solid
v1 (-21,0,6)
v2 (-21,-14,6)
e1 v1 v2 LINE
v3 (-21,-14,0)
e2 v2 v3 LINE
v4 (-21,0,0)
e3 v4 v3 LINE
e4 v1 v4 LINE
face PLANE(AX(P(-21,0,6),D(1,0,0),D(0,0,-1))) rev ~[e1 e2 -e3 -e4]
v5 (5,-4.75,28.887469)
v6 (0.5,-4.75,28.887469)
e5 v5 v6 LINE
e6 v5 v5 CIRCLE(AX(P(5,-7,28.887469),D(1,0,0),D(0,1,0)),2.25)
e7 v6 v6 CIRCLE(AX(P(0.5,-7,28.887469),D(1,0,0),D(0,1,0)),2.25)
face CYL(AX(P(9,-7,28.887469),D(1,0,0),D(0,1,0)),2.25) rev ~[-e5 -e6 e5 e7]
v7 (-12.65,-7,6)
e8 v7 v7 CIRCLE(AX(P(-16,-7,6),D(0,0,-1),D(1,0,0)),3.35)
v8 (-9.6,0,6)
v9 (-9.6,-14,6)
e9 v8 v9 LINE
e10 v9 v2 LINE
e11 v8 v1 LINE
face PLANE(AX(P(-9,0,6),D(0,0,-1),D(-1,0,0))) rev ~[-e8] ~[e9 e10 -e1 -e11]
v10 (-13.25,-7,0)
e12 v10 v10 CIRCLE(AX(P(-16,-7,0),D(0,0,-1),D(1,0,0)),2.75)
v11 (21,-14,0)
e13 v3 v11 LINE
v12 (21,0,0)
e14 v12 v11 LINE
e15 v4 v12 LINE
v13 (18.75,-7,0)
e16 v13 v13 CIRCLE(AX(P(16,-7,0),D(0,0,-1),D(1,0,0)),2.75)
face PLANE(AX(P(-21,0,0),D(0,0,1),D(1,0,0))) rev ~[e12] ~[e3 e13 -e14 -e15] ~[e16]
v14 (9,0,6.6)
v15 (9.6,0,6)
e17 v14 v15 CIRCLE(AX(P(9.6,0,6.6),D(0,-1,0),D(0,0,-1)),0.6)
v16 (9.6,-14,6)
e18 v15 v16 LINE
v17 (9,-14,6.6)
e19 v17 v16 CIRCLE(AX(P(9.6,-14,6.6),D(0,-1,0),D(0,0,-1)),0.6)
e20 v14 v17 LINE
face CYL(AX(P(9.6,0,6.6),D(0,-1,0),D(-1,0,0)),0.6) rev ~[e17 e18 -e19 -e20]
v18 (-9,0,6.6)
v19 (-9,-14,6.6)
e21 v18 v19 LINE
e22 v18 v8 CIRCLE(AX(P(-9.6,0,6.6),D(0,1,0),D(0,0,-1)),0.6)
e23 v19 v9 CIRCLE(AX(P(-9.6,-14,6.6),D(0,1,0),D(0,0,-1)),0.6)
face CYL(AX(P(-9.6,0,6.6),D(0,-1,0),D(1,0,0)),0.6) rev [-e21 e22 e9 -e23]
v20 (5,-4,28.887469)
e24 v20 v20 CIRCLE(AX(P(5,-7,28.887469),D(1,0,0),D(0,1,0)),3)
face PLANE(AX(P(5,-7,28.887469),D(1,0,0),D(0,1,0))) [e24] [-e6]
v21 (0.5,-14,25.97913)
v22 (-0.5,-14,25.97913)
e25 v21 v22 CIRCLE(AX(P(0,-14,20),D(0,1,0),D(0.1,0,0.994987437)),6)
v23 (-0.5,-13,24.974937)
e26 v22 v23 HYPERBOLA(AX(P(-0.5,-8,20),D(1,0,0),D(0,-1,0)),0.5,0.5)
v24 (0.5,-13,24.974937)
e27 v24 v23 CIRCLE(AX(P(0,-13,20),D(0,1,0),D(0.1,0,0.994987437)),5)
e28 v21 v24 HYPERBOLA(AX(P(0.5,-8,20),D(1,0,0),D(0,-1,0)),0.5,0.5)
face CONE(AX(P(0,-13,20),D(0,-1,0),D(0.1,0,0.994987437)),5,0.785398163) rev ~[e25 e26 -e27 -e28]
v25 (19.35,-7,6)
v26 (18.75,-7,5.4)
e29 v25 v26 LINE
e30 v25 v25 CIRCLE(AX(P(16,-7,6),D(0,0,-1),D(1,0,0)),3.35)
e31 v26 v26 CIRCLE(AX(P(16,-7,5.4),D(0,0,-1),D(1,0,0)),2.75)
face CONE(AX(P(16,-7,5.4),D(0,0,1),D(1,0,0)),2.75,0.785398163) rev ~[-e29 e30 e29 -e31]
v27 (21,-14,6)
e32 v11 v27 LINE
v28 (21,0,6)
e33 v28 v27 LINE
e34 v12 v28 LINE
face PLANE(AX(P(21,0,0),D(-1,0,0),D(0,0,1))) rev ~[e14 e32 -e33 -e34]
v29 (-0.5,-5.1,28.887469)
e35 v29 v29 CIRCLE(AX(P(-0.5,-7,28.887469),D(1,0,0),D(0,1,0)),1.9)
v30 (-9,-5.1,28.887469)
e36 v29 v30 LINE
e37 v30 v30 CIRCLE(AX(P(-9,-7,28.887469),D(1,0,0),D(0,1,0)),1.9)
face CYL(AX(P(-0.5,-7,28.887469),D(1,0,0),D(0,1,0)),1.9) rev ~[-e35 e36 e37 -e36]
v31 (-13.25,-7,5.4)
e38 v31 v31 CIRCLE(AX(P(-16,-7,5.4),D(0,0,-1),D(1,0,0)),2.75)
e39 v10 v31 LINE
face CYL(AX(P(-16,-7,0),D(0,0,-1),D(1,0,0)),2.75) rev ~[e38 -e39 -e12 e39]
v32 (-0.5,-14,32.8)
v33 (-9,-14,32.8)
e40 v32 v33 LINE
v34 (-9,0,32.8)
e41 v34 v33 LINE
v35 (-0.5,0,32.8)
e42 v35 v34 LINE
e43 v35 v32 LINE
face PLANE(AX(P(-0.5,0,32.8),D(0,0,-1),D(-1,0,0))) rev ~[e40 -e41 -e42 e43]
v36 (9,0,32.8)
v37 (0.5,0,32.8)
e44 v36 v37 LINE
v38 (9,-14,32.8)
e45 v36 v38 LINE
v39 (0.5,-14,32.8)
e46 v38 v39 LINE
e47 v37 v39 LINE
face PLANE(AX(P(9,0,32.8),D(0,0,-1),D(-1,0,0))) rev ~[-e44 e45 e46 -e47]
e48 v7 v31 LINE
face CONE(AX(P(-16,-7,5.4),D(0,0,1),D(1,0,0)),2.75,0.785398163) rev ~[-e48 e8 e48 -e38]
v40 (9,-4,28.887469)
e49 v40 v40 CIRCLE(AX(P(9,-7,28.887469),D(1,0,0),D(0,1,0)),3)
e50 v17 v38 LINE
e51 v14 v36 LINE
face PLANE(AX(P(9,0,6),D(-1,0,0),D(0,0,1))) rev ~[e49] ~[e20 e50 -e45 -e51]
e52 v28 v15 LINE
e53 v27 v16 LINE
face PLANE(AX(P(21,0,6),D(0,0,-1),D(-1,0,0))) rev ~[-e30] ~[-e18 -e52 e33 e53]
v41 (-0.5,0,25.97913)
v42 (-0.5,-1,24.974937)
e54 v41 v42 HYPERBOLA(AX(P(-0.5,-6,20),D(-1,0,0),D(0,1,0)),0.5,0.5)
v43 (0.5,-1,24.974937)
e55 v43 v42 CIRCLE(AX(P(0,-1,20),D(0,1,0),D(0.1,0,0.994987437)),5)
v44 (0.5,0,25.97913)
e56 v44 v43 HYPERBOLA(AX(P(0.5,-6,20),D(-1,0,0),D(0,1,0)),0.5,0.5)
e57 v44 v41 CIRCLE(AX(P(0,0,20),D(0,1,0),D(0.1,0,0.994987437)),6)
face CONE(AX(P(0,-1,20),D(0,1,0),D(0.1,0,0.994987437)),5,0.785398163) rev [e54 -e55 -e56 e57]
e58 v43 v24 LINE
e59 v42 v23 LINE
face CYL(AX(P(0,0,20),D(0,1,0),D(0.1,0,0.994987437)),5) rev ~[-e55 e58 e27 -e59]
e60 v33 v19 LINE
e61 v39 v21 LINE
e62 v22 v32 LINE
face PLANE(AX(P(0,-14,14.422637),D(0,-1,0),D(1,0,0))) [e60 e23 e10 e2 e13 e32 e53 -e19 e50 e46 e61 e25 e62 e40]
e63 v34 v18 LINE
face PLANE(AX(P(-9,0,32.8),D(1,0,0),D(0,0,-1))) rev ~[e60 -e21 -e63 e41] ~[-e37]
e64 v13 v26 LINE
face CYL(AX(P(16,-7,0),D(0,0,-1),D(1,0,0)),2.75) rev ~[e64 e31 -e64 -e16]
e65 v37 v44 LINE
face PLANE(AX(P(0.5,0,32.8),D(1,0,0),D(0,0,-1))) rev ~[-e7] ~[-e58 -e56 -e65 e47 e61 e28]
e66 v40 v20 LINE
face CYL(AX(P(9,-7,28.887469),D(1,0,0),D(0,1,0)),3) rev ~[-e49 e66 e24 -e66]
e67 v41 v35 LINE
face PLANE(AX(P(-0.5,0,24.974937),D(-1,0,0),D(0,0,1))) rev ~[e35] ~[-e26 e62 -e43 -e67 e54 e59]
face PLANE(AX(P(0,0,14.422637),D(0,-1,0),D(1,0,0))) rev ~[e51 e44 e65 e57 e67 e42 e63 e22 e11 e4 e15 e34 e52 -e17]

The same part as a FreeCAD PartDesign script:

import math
import FreeCAD as App
import Part
import Sketcher
from FreeCAD import Vector


def edges_at(feature, points):
    """Names of the edges that pass closest to the given points."""
    edges = feature.Shape.Edges
    near = lambda p: min(range(len(edges)), key=lambda i: edges[i].distToShape(Part.Vertex(*p))[0])
    return sorted({f"Edge{near(p) + 1}" for p in points})

doc = App.newDocument("Part")
params = doc.addObject("Spreadsheet::Sheet", "Params")
for row, (alias, value) in enumerate([
    ("sketch1_radius", "5 mm"),
    ("sketch1_width", "42 mm"),
    ("sketch1_width2", "12 mm"),
    ("sketch1_height", "6 mm"),
    ("sketch1_width3", "8.5 mm"),
    ("pad1_length", "14 mm"),
    ("sketch2_diameter", "5.5 mm"),
    ("chamfer_size", "1 mm"),
    ("fillet_radius", "0.6 mm"),
    ("chamfer2_size", "0.6 mm"),
    ("sketch3_diameter", "3.8 mm"),
    ("sketch4_diameter", "4.5 mm"),
    ("pocket3_length", "9.5 mm"),
    ("sketch5_diameter", "6 mm"),
    ("pocket4_length", "4 mm"),
], start=1):
    params.set(f"A{row}", alias)
    params.set(f"B{row}", "=" + value)
    params.setAlias(f"B{row}", alias)

body = doc.addObject("PartDesign::Body", "Body")

sketch1 = body.newObject("Sketcher::SketchObject", "Sketch")
sketch1.AttachmentSupport = (doc.getObject("XZ_Plane"), [""])
sketch1.MapMode = "FlatFace"
sketch1.addGeometry(Part.LineSegment(Vector(-21, 0, 0), Vector(21, 0, 0)), False)
sketch1.addGeometry(Part.LineSegment(Vector(21, 0, 0), Vector(21, 6, 0)), False)
sketch1.addGeometry(Part.LineSegment(Vector(21, 6, 0), Vector(9, 6, 0)), False)
sketch1.addGeometry(Part.LineSegment(Vector(9, 6, 0), Vector(9, 32.8, 0)), False)
sketch1.addGeometry(Part.LineSegment(Vector(9, 32.8, 0), Vector(0.5, 32.8, 0)), False)
sketch1.addGeometry(Part.LineSegment(Vector(0.5, 32.8, 0), Vector(0.5, 24.974937, 0)), False)
sketch1.addGeometry(Part.ArcOfCircle(Part.Circle(Vector(0, 20, 0), Vector(0, 0, 1), 5), math.radians(95.73917), math.radians(444.26083)), False)
sketch1.addGeometry(Part.LineSegment(Vector(-0.5, 24.974937, 0), Vector(-0.5, 32.8, 0)), False)
sketch1.addGeometry(Part.LineSegment(Vector(-0.5, 32.8, 0), Vector(-9, 32.8, 0)), False)
sketch1.addGeometry(Part.LineSegment(Vector(-9, 32.8, 0), Vector(-9, 6, 0)), False)
sketch1.addGeometry(Part.LineSegment(Vector(-9, 6, 0), Vector(-21, 6, 0)), False)
sketch1.addGeometry(Part.LineSegment(Vector(-21, 6, 0), Vector(-21, 0, 0)), False)
sketch1.addConstraint(Sketcher.Constraint("Coincident", 0, 2, 1, 1))
sketch1.addConstraint(Sketcher.Constraint("Coincident", 1, 2, 2, 1))
sketch1.addConstraint(Sketcher.Constraint("Coincident", 2, 2, 3, 1))
sketch1.addConstraint(Sketcher.Constraint("Coincident", 3, 2, 4, 1))
sketch1.addConstraint(Sketcher.Constraint("Coincident", 4, 2, 5, 1))
sketch1.addConstraint(Sketcher.Constraint("Coincident", 5, 2, 6, 2))
sketch1.addConstraint(Sketcher.Constraint("Coincident", 6, 1, 7, 1))
sketch1.addConstraint(Sketcher.Constraint("Coincident", 7, 2, 8, 1))
sketch1.addConstraint(Sketcher.Constraint("Coincident", 8, 2, 9, 1))
sketch1.addConstraint(Sketcher.Constraint("Coincident", 9, 2, 10, 1))
sketch1.addConstraint(Sketcher.Constraint("Coincident", 10, 2, 11, 1))
sketch1.addConstraint(Sketcher.Constraint("Coincident", 11, 2, 0, 1))
sketch1.addConstraint(Sketcher.Constraint("Horizontal", 0))
sketch1.addConstraint(Sketcher.Constraint("Vertical", 1))
sketch1.addConstraint(Sketcher.Constraint("Horizontal", 2))
sketch1.addConstraint(Sketcher.Constraint("Vertical", 3))
sketch1.addConstraint(Sketcher.Constraint("Horizontal", 4))
sketch1.addConstraint(Sketcher.Constraint("Vertical", 5))
sketch1.addConstraint(Sketcher.Constraint("Vertical", 7))
sketch1.addConstraint(Sketcher.Constraint("Horizontal", 8))
sketch1.addConstraint(Sketcher.Constraint("Vertical", 9))
sketch1.addConstraint(Sketcher.Constraint("Horizontal", 10))
sketch1.addConstraint(Sketcher.Constraint("Vertical", 11))
sketch1.addConstraint(Sketcher.Constraint("Symmetric", 0, 2, 11, 2, -1, 1))
sketch1.addConstraint(Sketcher.Constraint("Symmetric", 5, 2, 6, 1, -2))
sketch1.addConstraint(Sketcher.Constraint("Symmetric", 3, 2, 8, 2, -2))
sketch1.addConstraint(Sketcher.Constraint("Horizontal", 2, 2, 9, 2))
sketch1.addConstraint(Sketcher.Constraint("Radius", 6, 5.0))
sketch1.addConstraint(Sketcher.Constraint("DistanceX", 0, 1, 0, 2, 42.0))
sketch1.addConstraint(Sketcher.Constraint("DistanceX", 2, 2, 2, 1, 12.0))
sketch1.addConstraint(Sketcher.Constraint("DistanceY", 1, 1, 1, 2, 6.0))
sketch1.addConstraint(Sketcher.Constraint("DistanceX", 4, 2, 4, 1, 8.5))
sketch1.addConstraint(Sketcher.Constraint("DistanceY", 3, 1, 3, 2, 26.8))
sketch1.addConstraint(Sketcher.Constraint("DistanceY", -1, 1, 6, 3, 20.0))
sketch1.setExpression("Constraints[27]", "Params.sketch1_radius")
sketch1.setExpression("Constraints[28]", "Params.sketch1_width")
sketch1.setExpression("Constraints[29]", "Params.sketch1_width2")
sketch1.setExpression("Constraints[30]", "Params.sketch1_height")
sketch1.setExpression("Constraints[31]", "Params.sketch1_width3")
pad1 = body.newObject("PartDesign::Pad", "Pad")
pad1.Profile = sketch1
pad1.setExpression("Length", "Params.pad1_length")

sketch2 = body.newObject("Sketcher::SketchObject", "Sketch001")
sketch2.AttachmentSupport = (doc.getObject("XY_Plane"), [""])
sketch2.MapMode = "FlatFace"
sketch2.addGeometry(Part.Circle(Vector(-16, -7, 0), Vector(0, 0, 1), 2.75), False)
sketch2.addGeometry(Part.Circle(Vector(16, -7, 0), Vector(0, 0, 1), 2.75), False)
sketch2.addConstraint(Sketcher.Constraint("Equal", 0, 1))
sketch2.addConstraint(Sketcher.Constraint("Symmetric", 0, 3, 1, 3, -2))
sketch2.addConstraint(Sketcher.Constraint("Diameter", 0, 5.5))
sketch2.addConstraint(Sketcher.Constraint("DistanceX", 0, 3, -1, 1, 16.0))
sketch2.addConstraint(Sketcher.Constraint("DistanceY", 0, 3, -1, 1, 7.0))
sketch2.setExpression("Constraints[2]", "Params.sketch2_diameter")
pocket1 = body.newObject("PartDesign::Pocket", "Pocket")
pocket1.Profile = sketch2
pocket1.Type = "ThroughAll"
pocket1.Reversed = True
doc.recompute()

chamfer = body.newObject("PartDesign::Chamfer", "Chamfer")
chamfer.Base = (pocket1, edges_at(pocket1, [(0, -14, 15), (0, 0, 15)]))
chamfer.setExpression("Size", "Params.chamfer_size")
doc.recompute()

fillet = body.newObject("PartDesign::Fillet", "Fillet")
fillet.Base = (chamfer, edges_at(chamfer, [(9, -7, 6), (-9, -7, 6)]))
fillet.setExpression("Radius", "Params.fillet_radius")
doc.recompute()

chamfer2 = body.newObject("PartDesign::Chamfer", "Chamfer001")
chamfer2.Base = (fillet, edges_at(fillet, [(13.25, -7, 6), (-18.75, -7, 6)]))
chamfer2.setExpression("Size", "Params.chamfer2_size")

sketch3 = body.newObject("Sketcher::SketchObject", "Sketch002")
sketch3.AttachmentSupport = (doc.getObject("YZ_Plane"), [""])
sketch3.MapMode = "FlatFace"
sketch3.AttachmentOffset = App.Placement(Vector(0, 0, -0.5), App.Rotation())
sketch3.addGeometry(Part.Circle(Vector(-7, 28.887469, 0), Vector(0, 0, 1), 1.9), False)
sketch3.addConstraint(Sketcher.Constraint("Diameter", 0, 3.8))
sketch3.addConstraint(Sketcher.Constraint("DistanceX", 0, 3, -1, 1, 7.0))
sketch3.addConstraint(Sketcher.Constraint("DistanceY", -1, 1, 0, 3, 28.887469))
sketch3.setExpression("Constraints[0]", "Params.sketch3_diameter")
pocket2 = body.newObject("PartDesign::Pocket", "Pocket001")
pocket2.Profile = sketch3
pocket2.Type = "ThroughAll"
pocket2.Midplane = True

sketch4 = body.newObject("Sketcher::SketchObject", "Sketch003")
sketch4.AttachmentSupport = (doc.getObject("YZ_Plane"), [""])
sketch4.MapMode = "FlatFace"
sketch4.AttachmentOffset = App.Placement(Vector(0, 0, 9), App.Rotation())
sketch4.addGeometry(Part.Circle(Vector(-7, 28.887469, 0), Vector(0, 0, 1), 2.25), False)
sketch4.addConstraint(Sketcher.Constraint("Diameter", 0, 4.5))
sketch4.addConstraint(Sketcher.Constraint("DistanceX", 0, 3, -1, 1, 7.0))
sketch4.addConstraint(Sketcher.Constraint("DistanceY", -1, 1, 0, 3, 28.887469))
sketch4.setExpression("Constraints[0]", "Params.sketch4_diameter")
pocket3 = body.newObject("PartDesign::Pocket", "Pocket002")
pocket3.Profile = sketch4
pocket3.setExpression("Length", "Params.pocket3_length")

sketch5 = body.newObject("Sketcher::SketchObject", "Sketch004")
sketch5.AttachmentSupport = (doc.getObject("YZ_Plane"), [""])
sketch5.MapMode = "FlatFace"
sketch5.AttachmentOffset = App.Placement(Vector(0, 0, 9), App.Rotation())
sketch5.addGeometry(Part.Circle(Vector(-7, 28.887469, 0), Vector(0, 0, 1), 3), False)
sketch5.addConstraint(Sketcher.Constraint("Diameter", 0, 6.0))
sketch5.addConstraint(Sketcher.Constraint("DistanceX", 0, 3, -1, 1, 7.0))
sketch5.addConstraint(Sketcher.Constraint("DistanceY", -1, 1, 0, 3, 28.887469))
sketch5.setExpression("Constraints[0]", "Params.sketch5_diameter")
pocket4 = body.newObject("PartDesign::Pocket", "Pocket003")
pocket4.Profile = sketch5
pocket4.setExpression("Length", "Params.pocket4_length")

doc.recompute()
